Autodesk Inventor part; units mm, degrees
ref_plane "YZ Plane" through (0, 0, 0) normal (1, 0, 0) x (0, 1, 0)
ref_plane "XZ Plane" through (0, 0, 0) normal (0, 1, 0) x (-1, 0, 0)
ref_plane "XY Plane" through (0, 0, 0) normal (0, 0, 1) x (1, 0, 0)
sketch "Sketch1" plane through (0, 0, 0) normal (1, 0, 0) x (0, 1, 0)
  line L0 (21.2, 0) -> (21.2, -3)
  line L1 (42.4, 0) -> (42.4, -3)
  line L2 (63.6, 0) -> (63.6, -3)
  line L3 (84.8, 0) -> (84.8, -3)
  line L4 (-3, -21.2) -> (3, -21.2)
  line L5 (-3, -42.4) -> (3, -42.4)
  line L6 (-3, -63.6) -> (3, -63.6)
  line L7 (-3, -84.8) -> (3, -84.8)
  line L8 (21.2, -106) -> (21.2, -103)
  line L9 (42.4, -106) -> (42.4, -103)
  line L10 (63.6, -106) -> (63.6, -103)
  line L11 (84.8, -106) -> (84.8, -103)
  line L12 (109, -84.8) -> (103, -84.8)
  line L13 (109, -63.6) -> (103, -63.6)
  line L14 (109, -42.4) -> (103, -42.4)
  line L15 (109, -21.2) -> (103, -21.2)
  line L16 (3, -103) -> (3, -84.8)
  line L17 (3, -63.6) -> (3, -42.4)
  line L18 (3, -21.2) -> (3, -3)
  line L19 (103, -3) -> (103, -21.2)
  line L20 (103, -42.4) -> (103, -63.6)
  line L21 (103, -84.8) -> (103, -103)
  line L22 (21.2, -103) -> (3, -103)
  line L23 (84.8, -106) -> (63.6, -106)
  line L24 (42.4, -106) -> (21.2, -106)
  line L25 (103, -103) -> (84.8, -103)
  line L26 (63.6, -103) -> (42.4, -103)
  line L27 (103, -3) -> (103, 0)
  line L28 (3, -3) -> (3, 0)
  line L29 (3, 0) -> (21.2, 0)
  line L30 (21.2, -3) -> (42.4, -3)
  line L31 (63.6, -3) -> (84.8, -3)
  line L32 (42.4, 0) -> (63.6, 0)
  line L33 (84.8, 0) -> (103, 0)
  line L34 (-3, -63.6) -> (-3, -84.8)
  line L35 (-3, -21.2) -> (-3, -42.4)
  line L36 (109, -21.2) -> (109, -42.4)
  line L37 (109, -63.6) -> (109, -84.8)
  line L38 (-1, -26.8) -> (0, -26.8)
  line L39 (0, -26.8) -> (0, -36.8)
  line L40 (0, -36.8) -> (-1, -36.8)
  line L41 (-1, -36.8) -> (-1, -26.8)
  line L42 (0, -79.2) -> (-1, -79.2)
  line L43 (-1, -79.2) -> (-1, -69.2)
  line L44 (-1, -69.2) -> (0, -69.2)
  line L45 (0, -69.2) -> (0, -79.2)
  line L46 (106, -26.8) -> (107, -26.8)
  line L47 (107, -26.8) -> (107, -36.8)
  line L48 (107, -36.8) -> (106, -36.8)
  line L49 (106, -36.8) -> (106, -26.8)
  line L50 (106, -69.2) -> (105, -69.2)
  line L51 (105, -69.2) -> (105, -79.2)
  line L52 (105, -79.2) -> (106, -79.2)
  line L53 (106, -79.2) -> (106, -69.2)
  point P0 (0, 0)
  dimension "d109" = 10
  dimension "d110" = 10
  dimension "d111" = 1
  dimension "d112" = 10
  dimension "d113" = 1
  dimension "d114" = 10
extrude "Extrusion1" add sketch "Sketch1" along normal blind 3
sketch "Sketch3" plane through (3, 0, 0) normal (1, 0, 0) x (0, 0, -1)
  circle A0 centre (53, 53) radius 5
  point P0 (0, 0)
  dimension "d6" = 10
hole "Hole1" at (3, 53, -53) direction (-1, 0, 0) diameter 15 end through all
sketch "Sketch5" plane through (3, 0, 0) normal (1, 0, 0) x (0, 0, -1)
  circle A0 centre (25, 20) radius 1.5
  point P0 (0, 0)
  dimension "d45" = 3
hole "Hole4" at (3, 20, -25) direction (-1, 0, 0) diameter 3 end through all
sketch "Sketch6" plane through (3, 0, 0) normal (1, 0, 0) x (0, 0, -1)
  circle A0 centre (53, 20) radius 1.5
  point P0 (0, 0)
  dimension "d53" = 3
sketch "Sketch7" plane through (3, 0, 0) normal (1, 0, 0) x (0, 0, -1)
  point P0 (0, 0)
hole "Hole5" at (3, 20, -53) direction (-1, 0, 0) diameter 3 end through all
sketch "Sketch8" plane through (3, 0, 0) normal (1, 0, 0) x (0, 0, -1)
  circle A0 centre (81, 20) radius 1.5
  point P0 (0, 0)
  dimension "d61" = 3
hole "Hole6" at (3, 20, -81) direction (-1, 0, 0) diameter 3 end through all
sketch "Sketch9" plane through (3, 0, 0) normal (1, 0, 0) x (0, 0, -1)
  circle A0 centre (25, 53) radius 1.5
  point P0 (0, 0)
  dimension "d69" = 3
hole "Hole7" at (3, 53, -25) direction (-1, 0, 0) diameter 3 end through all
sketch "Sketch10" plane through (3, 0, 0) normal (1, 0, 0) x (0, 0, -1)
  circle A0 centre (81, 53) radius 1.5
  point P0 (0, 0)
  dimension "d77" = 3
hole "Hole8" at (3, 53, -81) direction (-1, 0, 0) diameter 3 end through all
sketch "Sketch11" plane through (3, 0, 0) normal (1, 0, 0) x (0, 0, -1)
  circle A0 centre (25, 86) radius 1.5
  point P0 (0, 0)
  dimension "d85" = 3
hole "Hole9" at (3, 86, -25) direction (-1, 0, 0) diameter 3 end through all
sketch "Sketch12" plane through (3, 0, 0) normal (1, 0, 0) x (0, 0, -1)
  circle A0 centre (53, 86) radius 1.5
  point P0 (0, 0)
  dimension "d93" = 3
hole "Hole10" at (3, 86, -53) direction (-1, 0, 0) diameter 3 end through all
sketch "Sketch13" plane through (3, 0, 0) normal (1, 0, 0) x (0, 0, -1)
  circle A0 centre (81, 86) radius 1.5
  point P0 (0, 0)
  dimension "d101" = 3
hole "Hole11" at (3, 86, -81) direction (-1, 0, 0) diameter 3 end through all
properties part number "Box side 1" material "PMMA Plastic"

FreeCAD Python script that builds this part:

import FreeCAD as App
import Part
import Sketcher
from FreeCAD import Vector


def add_polygon(sketch, points):
    """Adds a closed chain of lines whose ends are joined by coincident constraints."""
    first, n = sketch.GeometryCount, len(points)
    for a, b in zip(points, points[1:] + points[:1]):
        sketch.addGeometry(Part.LineSegment(App.Vector(*a, 0), App.Vector(*b, 0)), False)
    for i in range(n):
        sketch.addConstraint(Sketcher.Constraint("Coincident", first + i, 2, first + (i + 1) % n, 1))

doc = App.newDocument("Part")
body = doc.addObject("PartDesign::Body", "Body")

sketch1 = body.newObject("Sketcher::SketchObject", "Sketch")
sketch1.AttachmentSupport = (doc.getObject("YZ_Plane"), [""])
sketch1.MapMode = "FlatFace"
add_polygon(sketch1, [(21.2, -3), (21.2, 0), (3, 0), (3, -21.2), (-3, -21.2), (-3, -42.4), (3, -42.4), (3, -63.6), (-3, -63.6), (-3, -84.8), (3, -84.8), (3, -103), (21.2, -103), (21.2, -106), (42.4, -106), (42.4, -103), (63.6, -103), (63.6, -106), (84.8, -106), (84.8, -103), (103, -103), (103, -84.8), (109, -84.8), (109, -63.6), (103, -63.6), (103, -42.4), (109, -42.4), (109, -21.2), (103, -21.2), (103, 0), (84.8, 0), (84.8, -3), (63.6, -3), (63.6, 0), (42.4, 0), (42.4, -3)])
add_polygon(sketch1, [(0, -69.2), (0, -79.2), (-1, -79.2), (-1, -69.2)])
add_polygon(sketch1, [(105, -69.2), (106, -69.2), (106, -79.2), (105, -79.2)])
add_polygon(sketch1, [(-1, -36.8), (-1, -26.8), (0, -26.8), (0, -36.8)])
add_polygon(sketch1, [(106, -36.8), (106, -26.8), (107, -26.8), (107, -36.8)])
sketch1.addConstraint([
    Sketcher.Constraint("Vertical", 0),
    Sketcher.Constraint("Horizontal", 1),
    Sketcher.Constraint("Vertical", 2),
    Sketcher.Constraint("Horizontal", 3),
    Sketcher.Constraint("Vertical", 4),
    Sketcher.Constraint("Horizontal", 5),
    Sketcher.Constraint("Vertical", 6),
    Sketcher.Constraint("Horizontal", 7),
    Sketcher.Constraint("Vertical", 8),
    Sketcher.Constraint("Horizontal", 9),
    Sketcher.Constraint("Vertical", 10),
    Sketcher.Constraint("Horizontal", 11),
    Sketcher.Constraint("Vertical", 12),
    Sketcher.Constraint("Horizontal", 13),
    Sketcher.Constraint("Vertical", 14),
    Sketcher.Constraint("Horizontal", 15),
    Sketcher.Constraint("Vertical", 16),
    Sketcher.Constraint("Horizontal", 17),
    Sketcher.Constraint("Vertical", 18),
    Sketcher.Constraint("Horizontal", 19),
    Sketcher.Constraint("Vertical", 20),
    Sketcher.Constraint("Horizontal", 21),
    Sketcher.Constraint("Vertical", 22),
    Sketcher.Constraint("Horizontal", 23),
    Sketcher.Constraint("Vertical", 24),
    Sketcher.Constraint("Horizontal", 25),
    Sketcher.Constraint("Vertical", 26),
    Sketcher.Constraint("Horizontal", 27),
    Sketcher.Constraint("Vertical", 28),
    Sketcher.Constraint("Horizontal", 29),
    Sketcher.Constraint("Vertical", 30),
    Sketcher.Constraint("Horizontal", 31),
    Sketcher.Constraint("Vertical", 32),
    Sketcher.Constraint("Horizontal", 33),
    Sketcher.Constraint("Vertical", 34),
    Sketcher.Constraint("Horizontal", 35),
    Sketcher.Constraint("Vertical", 36),
    Sketcher.Constraint("Horizontal", 37),
    Sketcher.Constraint("Vertical", 38),
    Sketcher.Constraint("Horizontal", 39),
    Sketcher.Constraint("Horizontal", 40),
    Sketcher.Constraint("Vertical", 41),
    Sketcher.Constraint("Horizontal", 42),
    Sketcher.Constraint("Vertical", 43),
    Sketcher.Constraint("Vertical", 44),
    Sketcher.Constraint("Horizontal", 45),
    Sketcher.Constraint("Vertical", 46),
    Sketcher.Constraint("Horizontal", 47),
    Sketcher.Constraint("Vertical", 48),
    Sketcher.Constraint("Horizontal", 49),
    Sketcher.Constraint("Vertical", 50),
    Sketcher.Constraint("Horizontal", 51),
    Sketcher.Constraint("PointOnObject", 0, 2, -1),
    Sketcher.Constraint("PointOnObject", 28, 2, -1),
    Sketcher.Constraint("PointOnObject", 32, 2, -1),
    Sketcher.Constraint("PointOnObject", 36, 2, -2),
    Sketcher.Constraint("PointOnObject", 45, 2, -2),
    Sketcher.Constraint("Horizontal", 11, 2, 14, 2),
    Sketcher.Constraint("Horizontal", 13, 2, 16, 2),
    Sketcher.Constraint("Horizontal", 15, 2, 18, 2),
    Sketcher.Constraint("Horizontal", 9, 2, 20, 2),
    Sketcher.Constraint("Horizontal", 7, 2, 22, 2),
    Sketcher.Constraint("Horizontal", 5, 2, 24, 2),
    Sketcher.Constraint("Horizontal", 3, 2, 26, 2),
    Sketcher.Constraint("Horizontal", 31, 2, 34, 2),
    Sketcher.Constraint("Horizontal", 39, 2, 40, 2),
    Sketcher.Constraint("Horizontal", 37, 2, 41, 2),
    Sketcher.Constraint("Horizontal", 45, 2, 48, 2),
    Sketcher.Constraint("Horizontal", 47, 2, 50, 2),
    Sketcher.Constraint("Vertical", 2, 2, 5, 2),
    Sketcher.Constraint("Vertical", 4, 2, 7, 2),
    Sketcher.Constraint("Vertical", 6, 2, 9, 2),
    Sketcher.Constraint("Vertical", 0, 2, 11, 2),
    Sketcher.Constraint("Vertical", 20, 2, 23, 2),
    Sketcher.Constraint("Vertical", 22, 2, 25, 2),
    Sketcher.Constraint("Vertical", 24, 2, 27, 2),
    Sketcher.Constraint("Vertical", 18, 2, 29, 2),
    Sketcher.Constraint("Vertical", 16, 2, 31, 2),
    Sketcher.Constraint("Vertical", 14, 2, 33, 2),
    Sketcher.Constraint("Vertical", 38, 2, 44, 2),
    Sketcher.Constraint("Vertical", 41, 2, 48, 2),
    Sketcher.Constraint("Equal", 13, 15),
    Sketcher.Constraint("Equal", 15, 17),
    Sketcher.Constraint("Equal", 11, 19),
    Sketcher.Constraint("Equal", 9, 21),
    Sketcher.Constraint("Equal", 39, 40),
    Sketcher.Constraint("Equal", 47, 49),
    Sketcher.Constraint("Equal", 35, 2),
    Sketcher.Constraint("Equal", 2, 4),
    Sketcher.Constraint("Equal", 4, 6),
    Sketcher.Constraint("Equal", 6, 8),
    Sketcher.Constraint("Equal", 29, 10),
    Sketcher.Constraint("Equal", 0, 12),
    Sketcher.Constraint("Equal", 43, 44),
    Sketcher.Constraint("DistanceX", 37, 2, 37, 1, 1.0),
    Sketcher.Constraint("DistanceY", 36, 2, 36, 1, 10.0),
    Sketcher.Constraint("DistanceX", 3, 2, 3, 1, 6.0),
    Sketcher.Constraint("DistanceY", 0, 1, 0, 2, 3.0),
    Sketcher.Constraint("DistanceX", 1, 2, 1, 1, 18.2),
    Sketcher.Constraint("DistanceX", 13, 1, 13, 2, 21.2),
    Sketcher.Constraint("DistanceX", -1, 1, 1, 2, 3.0),
    Sketcher.Constraint("DistanceX", -1, 1, 40, 2, 106.0),
    Sketcher.Constraint("DistanceY", 36, 2, -1, 1, 79.2),
    Sketcher.Constraint("DistanceY", 44, 2, -1, 1, 26.8),
])
pad1 = body.newObject("PartDesign::Pad", "Pad")
pad1.Profile = sketch1
pad1.Length = 3

sketch2 = body.newObject("Sketcher::SketchObject", "Sketch001")
sketch2.AttachmentSupport = (doc.getObject("YZ_Plane"), [""])
sketch2.MapMode = "FlatFace"
sketch2.AttachmentOffset = App.Placement(Vector(0, 0, 3), App.Rotation())
sketch2.addGeometry(Part.Circle(Vector(53, -53, 0), Vector(0, 0, 1), 8), False)
sketch2.addConstraint([
    Sketcher.Constraint("Diameter", 0, 15.0),
    Sketcher.Constraint("DistanceX", -1, 1, 0, 3, 53.0),
    Sketcher.Constraint("DistanceY", 0, 3, -1, 1, 53.0),
])
doc.recompute()
hole = body.newObject("PartDesign::Hole", "Hole")
hole.Profile = sketch2
hole.ThreadType = "None"
hole.Diameter = 15
hole.DepthType = "ThroughAll"

sketch3 = body.newObject("Sketcher::SketchObject", "Sketch002")
sketch3.AttachmentSupport = (doc.getObject("YZ_Plane"), [""])
sketch3.MapMode = "FlatFace"
sketch3.AttachmentOffset = App.Placement(Vector(0, 0, 3), App.Rotation())
sketch3.addGeometry(Part.Circle(Vector(20, -25, 0), Vector(0, 0, 1), 1.5), False)
sketch3.addConstraint([
    Sketcher.Constraint("Diameter", 0, 3.0),
    Sketcher.Constraint("DistanceX", -1, 1, 0, 3, 20.0),
    Sketcher.Constraint("DistanceY", 0, 3, -1, 1, 25.0),
])
doc.recompute()
hole2 = body.newObject("PartDesign::Hole", "Hole001")
hole2.Profile = sketch3
hole2.ThreadType = "None"
hole2.Diameter = 3
hole2.DepthType = "ThroughAll"

sketch4 = body.newObject("Sketcher::SketchObject", "Sketch003")
sketch4.AttachmentSupport = (doc.getObject("YZ_Plane"), [""])
sketch4.MapMode = "FlatFace"
sketch4.AttachmentOffset = App.Placement(Vector(0, 0, 3), App.Rotation())
sketch4.addGeometry(Part.Circle(Vector(20, -53, 0), Vector(0, 0, 1), 1.5), False)
sketch4.addConstraint([
    Sketcher.Constraint("Diameter", 0, 3.0),
    Sketcher.Constraint("DistanceX", -1, 1, 0, 3, 20.0),
    Sketcher.Constraint("DistanceY", 0, 3, -1, 1, 53.0),
])
doc.recompute()
hole3 = body.newObject("PartDesign::Hole", "Hole002")
hole3.Profile = sketch4
hole3.ThreadType = "None"
hole3.Diameter = 3
hole3.DepthType = "ThroughAll"

sketch5 = body.newObject("Sketcher::SketchObject", "Sketch004")
sketch5.AttachmentSupport = (doc.getObject("YZ_Plane"), [""])
sketch5.MapMode = "FlatFace"
sketch5.AttachmentOffset = App.Placement(Vector(0, 0, 3), App.Rotation())
sketch5.addGeometry(Part.Circle(Vector(20, -81, 0), Vector(0, 0, 1), 1.5), False)
sketch5.addConstraint([
    Sketcher.Constraint("Diameter", 0, 3.0),
    Sketcher.Constraint("DistanceX", -1, 1, 0, 3, 20.0),
    Sketcher.Constraint("DistanceY", 0, 3, -1, 1, 81.0),
])
doc.recompute()
hole4 = body.newObject("PartDesign::Hole", "Hole003")
hole4.Profile = sketch5
hole4.ThreadType = "None"
hole4.Diameter = 3
hole4.DepthType = "ThroughAll"

sketch6 = body.newObject("Sketcher::SketchObject", "Sketch005")
sketch6.AttachmentSupport = (doc.getObject("YZ_Plane"), [""])
sketch6.MapMode = "FlatFace"
sketch6.AttachmentOffset = App.Placement(Vector(0, 0, 3), App.Rotation())
sketch6.addGeometry(Part.Circle(Vector(53, -25, 0), Vector(0, 0, 1), 1.5), False)
sketch6.addConstraint([
    Sketcher.Constraint("Diameter", 0, 3.0),
    Sketcher.Constraint("DistanceX", -1, 1, 0, 3, 53.0),
    Sketcher.Constraint("DistanceY", 0, 3, -1, 1, 25.0),
])
doc.recompute()
hole5 = body.newObject("PartDesign::Hole", "Hole004")
hole5.Profile = sketch6
hole5.ThreadType = "None"
hole5.Diameter = 3
hole5.DepthType = "ThroughAll"

sketch7 = body.newObject("Sketcher::SketchObject", "Sketch006")
sketch7.AttachmentSupport = (doc.getObject("YZ_Plane"), [""])
sketch7.MapMode = "FlatFace"
sketch7.AttachmentOffset = App.Placement(Vector(0, 0, 3), App.Rotation())
sketch7.addGeometry(Part.Circle(Vector(53, -81, 0), Vector(0, 0, 1), 1.5), False)
sketch7.addConstraint([
    Sketcher.Constraint("Diameter", 0, 3.0),
    Sketcher.Constraint("DistanceX", -1, 1, 0, 3, 53.0),
    Sketcher.Constraint("DistanceY", 0, 3, -1, 1, 81.0),
])
doc.recompute()
hole6 = body.newObject("PartDesign::Hole", "Hole005")
hole6.Profile = sketch7
hole6.ThreadType = "None"
hole6.Diameter = 3
hole6.DepthType = "ThroughAll"

sketch8 = body.newObject("Sketcher::SketchObject", "Sketch007")
sketch8.AttachmentSupport = (doc.getObject("YZ_Plane"), [""])
sketch8.MapMode = "FlatFace"
sketch8.AttachmentOffset = App.Placement(Vector(0, 0, 3), App.Rotation())
sketch8.addGeometry(Part.Circle(Vector(86, -25, 0), Vector(0, 0, 1), 1.5), False)
sketch8.addConstraint([
    Sketcher.Constraint("Diameter", 0, 3.0),
    Sketcher.Constraint("DistanceX", -1, 1, 0, 3, 86.0),
    Sketcher.Constraint("DistanceY", 0, 3, -1, 1, 25.0),
])
doc.recompute()
hole7 = body.newObject("PartDesign::Hole", "Hole006")
hole7.Profile = sketch8
hole7.ThreadType = "None"
hole7.Diameter = 3
hole7.DepthType = "ThroughAll"

sketch9 = body.newObject("Sketcher::SketchObject", "Sketch008")
sketch9.AttachmentSupport = (doc.getObject("YZ_Plane"), [""])
sketch9.MapMode = "FlatFace"
sketch9.AttachmentOffset = App.Placement(Vector(0, 0, 3), App.Rotation())
sketch9.addGeometry(Part.Circle(Vector(86, -53, 0), Vector(0, 0, 1), 1.5), False)
sketch9.addConstraint([
    Sketcher.Constraint("Diameter", 0, 3.0),
    Sketcher.Constraint("DistanceX", -1, 1, 0, 3, 86.0),
    Sketcher.Constraint("DistanceY", 0, 3, -1, 1, 53.0),
])
doc.recompute()
hole8 = body.newObject("PartDesign::Hole", "Hole007")
hole8.Profile = sketch9
hole8.ThreadType = "None"
hole8.Diameter = 3
hole8.DepthType = "ThroughAll"

sketch10 = body.newObject("Sketcher::SketchObject", "Sketch009")
sketch10.AttachmentSupport = (doc.getObject("YZ_Plane"), [""])
sketch10.MapMode = "FlatFace"
sketch10.AttachmentOffset = App.Placement(Vector(0, 0, 3), App.Rotation())
sketch10.addGeometry(Part.Circle(Vector(86, -81, 0), Vector(0, 0, 1), 1.5), False)
sketch10.addConstraint([
    Sketcher.Constraint("Diameter", 0, 3.0),
    Sketcher.Constraint("DistanceX", -1, 1, 0, 3, 86.0),
    Sketcher.Constraint("DistanceY", 0, 3, -1, 1, 81.0),
])
doc.recompute()
hole9 = body.newObject("PartDesign::Hole", "Hole008")
hole9.Profile = sketch10
hole9.ThreadType = "None"
hole9.Diameter = 3
hole9.DepthType = "ThroughAll"

doc.recompute()
